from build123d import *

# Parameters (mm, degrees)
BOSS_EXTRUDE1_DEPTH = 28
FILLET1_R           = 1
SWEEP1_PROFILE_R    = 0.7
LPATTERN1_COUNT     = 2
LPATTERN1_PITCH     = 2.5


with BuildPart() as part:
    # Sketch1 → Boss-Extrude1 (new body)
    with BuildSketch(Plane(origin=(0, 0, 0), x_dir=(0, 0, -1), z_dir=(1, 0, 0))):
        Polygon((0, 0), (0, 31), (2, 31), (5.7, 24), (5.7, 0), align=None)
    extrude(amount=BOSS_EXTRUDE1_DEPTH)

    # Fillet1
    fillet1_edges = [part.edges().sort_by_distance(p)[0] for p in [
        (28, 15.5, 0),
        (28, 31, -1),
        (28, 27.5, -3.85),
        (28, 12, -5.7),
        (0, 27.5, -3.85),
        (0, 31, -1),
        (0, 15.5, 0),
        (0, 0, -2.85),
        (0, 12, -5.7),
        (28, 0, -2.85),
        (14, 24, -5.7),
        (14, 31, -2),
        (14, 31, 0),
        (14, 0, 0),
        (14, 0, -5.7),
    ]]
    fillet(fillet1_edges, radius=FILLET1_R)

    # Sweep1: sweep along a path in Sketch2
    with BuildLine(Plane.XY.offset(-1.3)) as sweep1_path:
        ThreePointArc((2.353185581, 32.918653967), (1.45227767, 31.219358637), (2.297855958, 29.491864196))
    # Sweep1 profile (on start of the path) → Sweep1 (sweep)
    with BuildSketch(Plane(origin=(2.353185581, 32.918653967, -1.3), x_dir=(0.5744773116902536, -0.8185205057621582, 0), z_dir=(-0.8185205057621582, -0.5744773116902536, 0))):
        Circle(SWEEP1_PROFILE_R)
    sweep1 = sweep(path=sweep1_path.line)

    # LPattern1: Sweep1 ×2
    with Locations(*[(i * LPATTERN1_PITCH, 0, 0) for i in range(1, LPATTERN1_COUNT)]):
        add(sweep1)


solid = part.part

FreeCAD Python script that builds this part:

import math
import FreeCAD as App
import Part
import Sketcher

V = App.Vector
Q = App.Units.Quantity


def add_polygon(sketch, points):
    """Adds a closed chain of lines whose ends are joined by coincident constraints."""
    first, n = sketch.GeometryCount, len(points)
    for a, b in zip(points, points[1:] + points[:1]):
        sketch.addGeometry(Part.LineSegment(App.Vector(*a, 0), App.Vector(*b, 0)), False)
    for i in range(n):
        sketch.addConstraint(Sketcher.Constraint("Coincident", first + i, 2, first + (i + 1) % n, 1))

doc = App.newDocument("Part")
body = doc.addObject("PartDesign::Body", "Body")

# Sketch on YZ plane
sketch1 = doc.addObject("Sketcher::SketchObject", "Sketch")
body.addObject(sketch1)
sketch1.AttachmentSupport = (doc.YZ_Plane, [""])
sketch1.MapMode = "FlatFace"
add_polygon(sketch1, [(31, 0), (0, 0), (0, -5.7), (24, -5.7), (31, -2)])  # lines 0-4
sketch1.addConstraint(Sketcher.Constraint("Horizontal", 0))
sketch1.addConstraint(Sketcher.Constraint("Vertical", 1))
sketch1.addConstraint(Sketcher.Constraint("Horizontal", 2))
sketch1.addConstraint(Sketcher.Constraint("Vertical", 4))
sketch1.addConstraint(Sketcher.Constraint("Coincident", 0, 2, -1, 1))
sketch1.addConstraint(Sketcher.Constraint("DistanceX", 0, 2, 0, 1, Q("31 mm")))
sketch1.addConstraint(Sketcher.Constraint("DistanceX", 2, 1, 2, 2, Q("24 mm")))
sketch1.addConstraint(Sketcher.Constraint("DistanceY", 4, 1, 4, 2, Q("2 mm")))
sketch1.addConstraint(Sketcher.Constraint("DistanceY", 1, 2, 1, 1, Q("5.7 mm")))
pad1 = doc.addObject("PartDesign::Pad", "Pad")
body.addObject(pad1)
pad1.Profile = sketch1
pad1.Length = 28
doc.recompute()

fillet = doc.addObject("PartDesign::Fillet", "Fillet")
body.addObject(fillet)
fillet.Base = (pad1, ["Edge1"])
fillet.UseAllEdges = True
fillet.Radius = 1

# Sketch on an angled plane
sketch2 = doc.addObject("Sketcher::SketchObject", "Sketch001")
body.addObject(sketch2)
sketch2.Placement = App.Placement(V(2.353186, 32.918654, -1.3), App.Rotation(V(0.574477312, -0.818520506, 0), V(0, 0, 1.000000001), V(-0.818520506, -0.574477312, 0), "ZXY"))
sketch2.addGeometry(Part.Circle(V(0, 0, 0), V(0, 0, 1), 0.7), False)
sketch2.addConstraint(Sketcher.Constraint("Coincident", 0, 3, -1, 1))
sketch2.addConstraint(Sketcher.Constraint("Diameter", 0, Q("1.4 mm")))

# Sketch on XY plane
sketch3 = doc.addObject("Sketcher::SketchObject", "Sketch002")
body.addObject(sketch3)
sketch3.AttachmentSupport = (doc.XY_Plane, [""])
sketch3.MapMode = "FlatFace"
sketch3.AttachmentOffset = App.Placement(V(0, 0, -1.3), App.Rotation())
sketch3.addGeometry(Part.ArcOfCircle(Part.Circle(V(3.56983, 31.185168, 0), V(0, 0, 1), 2.117828), math.radians(125.063036), math.radians(233.086907)), False)
sketch3.addConstraint(Sketcher.Constraint("Radius", 0, Q("2.117828 mm")))
sketch3.addConstraint(Sketcher.Constraint("DistanceX", -1, 1, 0, 3, Q("3.56983 mm")))
sketch3.addConstraint(Sketcher.Constraint("DistanceY", -1, 1, 0, 3, Q("31.185168 mm")))
sketch3.addConstraint(Sketcher.Constraint("DistanceX", 0, 2, 0, 1, Q("0.05533 mm")))
sketch3.addConstraint(Sketcher.Constraint("DistanceY", 0, 2, 0, 1, Q("3.42679 mm")))
doc.recompute()

additivepipe = doc.addObject("PartDesign::AdditivePipe", "AdditivePipe")
body.addObject(additivepipe)
additivepipe.Profile = sketch2
additivepipe.Spine = (sketch3, ["Edge1"])
doc.recompute()

linearpattern = doc.addObject("PartDesign::LinearPattern", "LinearPattern")
body.addObject(linearpattern)
linearpattern.Originals = [additivepipe]
linearpattern.Direction = (doc.X_Axis, [""])
linearpattern.Mode = "offset"
linearpattern.Offset = 2.5
linearpattern.Occurrences = 2
body.Tip = linearpattern

doc.recompute()
